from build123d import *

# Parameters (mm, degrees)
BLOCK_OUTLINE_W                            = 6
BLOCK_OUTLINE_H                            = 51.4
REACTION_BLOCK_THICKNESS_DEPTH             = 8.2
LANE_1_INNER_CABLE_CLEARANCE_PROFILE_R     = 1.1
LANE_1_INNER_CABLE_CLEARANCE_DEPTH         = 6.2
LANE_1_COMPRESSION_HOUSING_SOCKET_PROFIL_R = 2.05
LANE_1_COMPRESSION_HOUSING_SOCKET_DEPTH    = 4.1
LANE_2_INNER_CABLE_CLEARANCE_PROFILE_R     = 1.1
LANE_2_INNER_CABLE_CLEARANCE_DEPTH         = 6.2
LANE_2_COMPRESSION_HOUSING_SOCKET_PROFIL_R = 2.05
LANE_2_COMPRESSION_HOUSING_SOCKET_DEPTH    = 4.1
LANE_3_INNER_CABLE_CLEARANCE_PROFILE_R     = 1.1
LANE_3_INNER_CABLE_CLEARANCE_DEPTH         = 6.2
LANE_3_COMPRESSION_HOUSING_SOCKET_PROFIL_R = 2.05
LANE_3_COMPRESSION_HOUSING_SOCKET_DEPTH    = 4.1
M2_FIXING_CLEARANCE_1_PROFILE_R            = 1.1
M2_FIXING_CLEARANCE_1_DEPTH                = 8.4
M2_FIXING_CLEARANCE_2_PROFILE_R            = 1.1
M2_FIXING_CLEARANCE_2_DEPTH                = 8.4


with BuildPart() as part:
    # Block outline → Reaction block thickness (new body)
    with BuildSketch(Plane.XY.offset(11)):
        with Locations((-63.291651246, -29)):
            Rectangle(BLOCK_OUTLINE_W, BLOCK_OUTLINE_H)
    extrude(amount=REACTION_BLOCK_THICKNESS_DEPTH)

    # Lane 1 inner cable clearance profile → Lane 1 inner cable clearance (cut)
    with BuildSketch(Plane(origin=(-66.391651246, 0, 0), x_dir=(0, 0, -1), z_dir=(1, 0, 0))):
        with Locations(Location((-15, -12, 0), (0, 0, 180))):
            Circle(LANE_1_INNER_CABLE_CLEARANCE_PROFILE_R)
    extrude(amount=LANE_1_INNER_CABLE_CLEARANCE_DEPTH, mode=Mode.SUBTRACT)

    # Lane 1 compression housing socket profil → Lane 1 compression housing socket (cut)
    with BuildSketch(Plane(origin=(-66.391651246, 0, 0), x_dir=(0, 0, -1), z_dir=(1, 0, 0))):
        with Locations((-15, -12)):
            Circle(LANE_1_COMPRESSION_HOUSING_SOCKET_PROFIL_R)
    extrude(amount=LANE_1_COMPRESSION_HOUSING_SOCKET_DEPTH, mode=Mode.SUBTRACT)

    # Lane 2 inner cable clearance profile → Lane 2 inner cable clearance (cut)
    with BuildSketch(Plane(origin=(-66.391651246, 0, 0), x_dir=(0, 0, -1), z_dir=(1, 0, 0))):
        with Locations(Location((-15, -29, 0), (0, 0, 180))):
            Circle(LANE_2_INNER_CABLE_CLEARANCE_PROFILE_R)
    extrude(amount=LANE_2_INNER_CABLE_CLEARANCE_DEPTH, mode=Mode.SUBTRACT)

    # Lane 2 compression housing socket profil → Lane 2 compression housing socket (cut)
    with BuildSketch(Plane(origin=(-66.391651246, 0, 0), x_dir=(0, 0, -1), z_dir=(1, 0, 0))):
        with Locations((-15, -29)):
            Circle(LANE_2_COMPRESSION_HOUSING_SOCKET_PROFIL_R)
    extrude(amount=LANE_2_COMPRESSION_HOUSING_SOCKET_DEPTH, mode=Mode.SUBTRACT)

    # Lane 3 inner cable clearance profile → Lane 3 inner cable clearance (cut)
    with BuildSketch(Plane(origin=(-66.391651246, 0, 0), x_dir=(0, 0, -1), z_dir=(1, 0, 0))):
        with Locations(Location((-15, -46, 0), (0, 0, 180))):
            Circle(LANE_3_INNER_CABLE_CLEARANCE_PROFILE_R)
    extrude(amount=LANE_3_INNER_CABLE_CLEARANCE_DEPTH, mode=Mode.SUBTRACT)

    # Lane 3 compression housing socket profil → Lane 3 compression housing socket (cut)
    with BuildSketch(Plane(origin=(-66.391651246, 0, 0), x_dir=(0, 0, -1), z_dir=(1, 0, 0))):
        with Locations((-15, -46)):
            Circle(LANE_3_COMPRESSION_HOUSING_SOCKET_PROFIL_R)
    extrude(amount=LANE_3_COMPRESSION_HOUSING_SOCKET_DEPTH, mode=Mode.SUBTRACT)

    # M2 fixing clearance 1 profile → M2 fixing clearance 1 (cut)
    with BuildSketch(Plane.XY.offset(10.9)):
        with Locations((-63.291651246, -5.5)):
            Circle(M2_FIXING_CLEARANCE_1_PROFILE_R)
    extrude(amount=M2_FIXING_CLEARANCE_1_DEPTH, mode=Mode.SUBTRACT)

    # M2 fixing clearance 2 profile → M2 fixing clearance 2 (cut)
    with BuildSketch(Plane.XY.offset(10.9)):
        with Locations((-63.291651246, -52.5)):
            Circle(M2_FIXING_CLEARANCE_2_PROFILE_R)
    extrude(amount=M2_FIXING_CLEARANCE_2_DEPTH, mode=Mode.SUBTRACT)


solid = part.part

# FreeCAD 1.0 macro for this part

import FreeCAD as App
import Part
import Sketcher

V = App.Vector

doc = App.newDocument("Part")
body = doc.addObject("PartDesign::Body", "Body")

# Sketch on XY plane
sketch1 = doc.addObject("Sketcher::SketchObject", "Sketch")
body.addObject(sketch1)
sketch1.AttachmentSupport = (doc.XY_Plane, [""])
sketch1.MapMode = "FlatFace"
sketch1.AttachmentOffset = App.Placement(V(0, 0, 11), App.Rotation())
sketch1.addGeometry([
    Part.LineSegment(V(-66, -3, 0), V(-66, -55, 0)),
    Part.LineSegment(V(-66, -55, 0), V(-60, -55, 0)),
    Part.LineSegment(V(-60, -55, 0), V(-60, -3, 0)),
    Part.LineSegment(V(-60, -3, 0), V(-66, -3, 0)),
], False)
sketch1.addConstraint([
    Sketcher.Constraint("Coincident", 0, 2, 1, 1),
    Sketcher.Constraint("Coincident", 1, 2, 2, 1),
    Sketcher.Constraint("Coincident", 2, 2, 3, 1),
    Sketcher.Constraint("Coincident", 3, 2, 0, 1),
    Sketcher.Constraint("Vertical", 0),
    Sketcher.Constraint("Horizontal", 1),
    Sketcher.Constraint("Vertical", 2),
    Sketcher.Constraint("Horizontal", 3),
    Sketcher.Constraint("DistanceX", 1, 1, 1, 2, 6.0),
    Sketcher.Constraint("DistanceY", 0, 2, 0, 1, 51.4),
    Sketcher.Constraint("DistanceY", 0, 2, -1, 1, 54.7),
    Sketcher.Constraint("DistanceX", 0, 2, -1, 1, 66.291651),
])
pad1 = doc.addObject("PartDesign::Pad", "Pad")
body.addObject(pad1)
pad1.Profile = sketch1
pad1.Length = 8.2

# Sketch on YZ plane
sketch2 = doc.addObject("Sketcher::SketchObject", "Sketch001")
body.addObject(sketch2)
sketch2.AttachmentSupport = (doc.YZ_Plane, [""])
sketch2.MapMode = "FlatFace"
sketch2.AttachmentOffset = App.Placement(V(0, 0, -66.391651), App.Rotation())
sketch2.addGeometry(Part.Circle(V(-12, 15, 0), V(0, 0, 1), 1.1), False)
sketch2.addConstraint([
    Sketcher.Constraint("Diameter", 0, 2.2),
    Sketcher.Constraint("DistanceX", 0, 3, -1, 1, 12.0),
    Sketcher.Constraint("DistanceY", -1, 1, 0, 3, 15.0),
])
pocket1 = doc.addObject("PartDesign::Pocket", "Pocket")
body.addObject(pocket1)
pocket1.Profile = sketch2
pocket1.Length = 6.2
pocket1.Reversed = True

# Sketch on YZ plane
sketch3 = doc.addObject("Sketcher::SketchObject", "Sketch002")
body.addObject(sketch3)
sketch3.AttachmentSupport = (doc.YZ_Plane, [""])
sketch3.MapMode = "FlatFace"
sketch3.AttachmentOffset = App.Placement(V(0, 0, -66.391651), App.Rotation())
sketch3.addGeometry(Part.Circle(V(-12, 15, 0), V(0, 0, 1), 2), False)
sketch3.addConstraint([
    Sketcher.Constraint("Diameter", 0, 4.1),
    Sketcher.Constraint("DistanceX", 0, 3, -1, 1, 12.0),
    Sketcher.Constraint("DistanceY", -1, 1, 0, 3, 15.0),
])
pocket2 = doc.addObject("PartDesign::Pocket", "Pocket001")
body.addObject(pocket2)
pocket2.Profile = sketch3
pocket2.Length = 4.1
pocket2.Reversed = True

# Sketch on YZ plane
sketch4 = doc.addObject("Sketcher::SketchObject", "Sketch003")
body.addObject(sketch4)
sketch4.AttachmentSupport = (doc.YZ_Plane, [""])
sketch4.MapMode = "FlatFace"
sketch4.AttachmentOffset = App.Placement(V(0, 0, -66.391651), App.Rotation())
sketch4.addGeometry(Part.Circle(V(-29, 15, 0), V(0, 0, 1), 1.1), False)
sketch4.addConstraint([
    Sketcher.Constraint("Diameter", 0, 2.2),
    Sketcher.Constraint("DistanceX", 0, 3, -1, 1, 29.0),
    Sketcher.Constraint("DistanceY", -1, 1, 0, 3, 15.0),
])
pocket3 = doc.addObject("PartDesign::Pocket", "Pocket002")
body.addObject(pocket3)
pocket3.Profile = sketch4
pocket3.Length = 6.2
pocket3.Reversed = True

# Sketch on YZ plane
sketch5 = doc.addObject("Sketcher::SketchObject", "Sketch004")
body.addObject(sketch5)
sketch5.AttachmentSupport = (doc.YZ_Plane, [""])
sketch5.MapMode = "FlatFace"
sketch5.AttachmentOffset = App.Placement(V(0, 0, -66.391651), App.Rotation())
sketch5.addGeometry(Part.Circle(V(-29, 15, 0), V(0, 0, 1), 2), False)
sketch5.addConstraint([
    Sketcher.Constraint("Diameter", 0, 4.1),
    Sketcher.Constraint("DistanceX", 0, 3, -1, 1, 29.0),
    Sketcher.Constraint("DistanceY", -1, 1, 0, 3, 15.0),
])
pocket4 = doc.addObject("PartDesign::Pocket", "Pocket003")
body.addObject(pocket4)
pocket4.Profile = sketch5
pocket4.Length = 4.1
pocket4.Reversed = True

# Sketch on YZ plane
sketch6 = doc.addObject("Sketcher::SketchObject", "Sketch005")
body.addObject(sketch6)
sketch6.AttachmentSupport = (doc.YZ_Plane, [""])
sketch6.MapMode = "FlatFace"
sketch6.AttachmentOffset = App.Placement(V(0, 0, -66.391651), App.Rotation())
sketch6.addGeometry(Part.Circle(V(-46, 15, 0), V(0, 0, 1), 1.1), False)
sketch6.addConstraint([
    Sketcher.Constraint("Diameter", 0, 2.2),
    Sketcher.Constraint("DistanceX", 0, 3, -1, 1, 46.0),
    Sketcher.Constraint("DistanceY", -1, 1, 0, 3, 15.0),
])
pocket5 = doc.addObject("PartDesign::Pocket", "Pocket004")
body.addObject(pocket5)
pocket5.Profile = sketch6
pocket5.Length = 6.2
pocket5.Reversed = True

# Sketch on YZ plane
sketch7 = doc.addObject("Sketcher::SketchObject", "Sketch006")
body.addObject(sketch7)
sketch7.AttachmentSupport = (doc.YZ_Plane, [""])
sketch7.MapMode = "FlatFace"
sketch7.AttachmentOffset = App.Placement(V(0, 0, -66.391651), App.Rotation())
sketch7.addGeometry(Part.Circle(V(-46, 15, 0), V(0, 0, 1), 2), False)
sketch7.addConstraint([
    Sketcher.Constraint("Diameter", 0, 4.1),
    Sketcher.Constraint("DistanceX", 0, 3, -1, 1, 46.0),
    Sketcher.Constraint("DistanceY", -1, 1, 0, 3, 15.0),
])
pocket6 = doc.addObject("PartDesign::Pocket", "Pocket005")
body.addObject(pocket6)
pocket6.Profile = sketch7
pocket6.Length = 4.1
pocket6.Reversed = True

# Sketch on XY plane
sketch8 = doc.addObject("Sketcher::SketchObject", "Sketch007")
body.addObject(sketch8)
sketch8.AttachmentSupport = (doc.XY_Plane, [""])
sketch8.MapMode = "FlatFace"
sketch8.AttachmentOffset = App.Placement(V(0, 0, 10.9), App.Rotation())
sketch8.addGeometry(Part.Circle(V(-63.3, -5.5, 0), V(0, 0, 1), 1.1), False)
sketch8.addConstraint([
    Sketcher.Constraint("Diameter", 0, 2.2),
    Sketcher.Constraint("DistanceY", 0, 3, -1, 1, 5.5),
    Sketcher.Constraint("DistanceX", 0, 3, -1, 1, 63.291651),
])
pocket7 = doc.addObject("PartDesign::Pocket", "Pocket006")
body.addObject(pocket7)
pocket7.Profile = sketch8
pocket7.Length = 8.4
pocket7.Reversed = True

# Sketch on XY plane
sketch9 = doc.addObject("Sketcher::SketchObject", "Sketch008")
body.addObject(sketch9)
sketch9.AttachmentSupport = (doc.XY_Plane, [""])
sketch9.MapMode = "FlatFace"
sketch9.AttachmentOffset = App.Placement(V(0, 0, 10.9), App.Rotation())
sketch9.addGeometry(Part.Circle(V(-63.3, -52.5, 0), V(0, 0, 1), 1.1), False)
sketch9.addConstraint([
    Sketcher.Constraint("Diameter", 0, 2.2),
    Sketcher.Constraint("DistanceY", 0, 3, -1, 1, 52.5),
    Sketcher.Constraint("DistanceX", 0, 3, -1, 1, 63.291651),
])
pocket8 = doc.addObject("PartDesign::Pocket", "Pocket007")
body.addObject(pocket8)
pocket8.Profile = sketch9
pocket8.Length = 8.4
pocket8.Reversed = True

doc.recompute()
